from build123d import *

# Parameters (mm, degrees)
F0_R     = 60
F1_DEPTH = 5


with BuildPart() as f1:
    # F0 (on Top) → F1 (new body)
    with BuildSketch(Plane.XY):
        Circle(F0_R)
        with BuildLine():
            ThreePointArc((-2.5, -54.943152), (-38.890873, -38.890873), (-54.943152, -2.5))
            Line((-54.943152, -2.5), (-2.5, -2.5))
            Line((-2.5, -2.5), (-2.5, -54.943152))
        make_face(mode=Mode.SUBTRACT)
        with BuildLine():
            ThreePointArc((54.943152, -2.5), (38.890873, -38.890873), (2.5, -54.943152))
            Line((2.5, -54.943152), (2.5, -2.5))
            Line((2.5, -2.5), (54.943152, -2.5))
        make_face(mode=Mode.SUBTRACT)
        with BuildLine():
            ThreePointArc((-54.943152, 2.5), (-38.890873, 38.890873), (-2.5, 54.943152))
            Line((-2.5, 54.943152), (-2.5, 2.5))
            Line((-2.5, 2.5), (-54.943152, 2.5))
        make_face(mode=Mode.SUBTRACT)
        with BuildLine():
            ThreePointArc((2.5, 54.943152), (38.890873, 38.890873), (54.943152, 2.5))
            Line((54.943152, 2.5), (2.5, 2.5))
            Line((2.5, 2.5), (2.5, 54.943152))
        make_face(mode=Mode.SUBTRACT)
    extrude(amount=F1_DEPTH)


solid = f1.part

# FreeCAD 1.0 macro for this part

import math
import FreeCAD as App
import Part
import Sketcher

V = App.Vector
Q = App.Units.Quantity

doc = App.newDocument("Part")
params = doc.addObject("Spreadsheet::Sheet", "Params")
for row, (alias, value) in enumerate([
    ("sketch1_diameter", "120 mm"),
    ("sketch1_radius", "54.999998 mm"),
    ("pad1_length", "5 mm"),
], start=1):
    params.set(f"A{row}", alias)
    params.set(f"B{row}", "=" + value)
    params.setAlias(f"B{row}", alias)

body = doc.addObject("PartDesign::Body", "Body")

sketch1 = body.newObject("Sketcher::SketchObject", "Sketch")
sketch1.AttachmentSupport = (doc.getObject("XY_Plane"), [""])
sketch1.MapMode = "FlatFace"
sketch1.addGeometry([
    Part.Circle(V(0, 0, 0), V(0, 0, 1), 60),
    Part.LineSegment(V(-2.5, -2.5, 0), V(-2.5, -54.943152, 0)),
    Part.ArcOfCircle(Part.Circle(V(-0.000001, -0.000001, 0), V(0, 0, 1), 54.999998), math.radians(-177.39475), math.radians(-92.60525)),
    Part.LineSegment(V(-54.943152, -2.5, 0), V(-2.5, -2.5, 0)),
    Part.LineSegment(V(2.5, -2.5, 0), V(54.943152, -2.5, 0)),
    Part.ArcOfCircle(Part.Circle(V(0.000001, -0.000001, 0), V(0, 0, 1), 54.999998), math.radians(-87.39475), math.radians(-2.60525)),
    Part.LineSegment(V(2.5, -54.943152, 0), V(2.5, -2.5, 0)),
    Part.LineSegment(V(-2.5, 2.5, 0), V(-54.943152, 2.5, 0)),
    Part.ArcOfCircle(Part.Circle(V(-0.000001, 0.000001, 0), V(0, 0, 1), 54.999998), math.radians(92.60525), math.radians(177.39475)),
    Part.LineSegment(V(-2.5, 54.943152, 0), V(-2.5, 2.5, 0)),
    Part.LineSegment(V(2.5, 2.5, 0), V(2.5, 54.943152, 0)),
    Part.ArcOfCircle(Part.Circle(V(0.000001, 0.000001, 0), V(0, 0, 1), 54.999998), math.radians(2.60525), math.radians(87.39475)),
    Part.LineSegment(V(54.943152, 2.5, 0), V(2.5, 2.5, 0)),
], False)
sketch1.addConstraint([
    Sketcher.Constraint("Coincident", 1, 2, 2, 2),
    Sketcher.Constraint("Coincident", 2, 1, 3, 1),
    Sketcher.Constraint("Coincident", 3, 2, 1, 1),
    Sketcher.Constraint("Coincident", 4, 2, 5, 2),
    Sketcher.Constraint("Coincident", 5, 1, 6, 1),
    Sketcher.Constraint("Coincident", 6, 2, 4, 1),
    Sketcher.Constraint("Coincident", 7, 2, 8, 2),
    Sketcher.Constraint("Coincident", 8, 1, 9, 1),
    Sketcher.Constraint("Coincident", 9, 2, 7, 1),
    Sketcher.Constraint("Coincident", 10, 2, 11, 2),
    Sketcher.Constraint("Coincident", 11, 1, 12, 1),
    Sketcher.Constraint("Coincident", 12, 2, 10, 1),
    Sketcher.Constraint("Vertical", 1),
    Sketcher.Constraint("Horizontal", 3),
    Sketcher.Constraint("Horizontal", 4),
    Sketcher.Constraint("Vertical", 6),
    Sketcher.Constraint("Horizontal", 7),
    Sketcher.Constraint("Vertical", 9),
    Sketcher.Constraint("Vertical", 10),
    Sketcher.Constraint("Horizontal", 12),
    Sketcher.Constraint("Coincident", 0, 3, -1, 1),
    Sketcher.Constraint("Coincident", 2, 3, -1, 1),
    Sketcher.Constraint("Coincident", 5, 3, -1, 1),
    Sketcher.Constraint("Coincident", 8, 3, -1, 1),
    Sketcher.Constraint("Coincident", 11, 3, -1, 1),
    Sketcher.Constraint("Equal", 2, 5),
    Sketcher.Constraint("Equal", 5, 8),
    Sketcher.Constraint("Equal", 8, 11),
    Sketcher.Constraint("Symmetric", 6, 2, 9, 2, -1, 1),
    Sketcher.Constraint("Symmetric", 3, 2, 12, 2, -1, 1),
    Sketcher.Constraint("Symmetric", 3, 2, 6, 2, -2),
    Sketcher.Constraint("Equal", 12, 1),
    Sketcher.Constraint("Diameter", 0, Q("120 mm")),
    Sketcher.Constraint("Radius", 2, Q("54.999998 mm")),
    Sketcher.Constraint("DistanceX", 1, 2, 5, 1, Q("5 mm")),
])
sketch1.setExpression("Constraints[32]", "Params.sketch1_diameter")
sketch1.setExpression("Constraints[33]", "Params.sketch1_radius")
pad1 = body.newObject("PartDesign::Pad", "Pad")
pad1.Profile = sketch1
pad1.setExpression("Length", "Params.pad1_length")

doc.recompute()
